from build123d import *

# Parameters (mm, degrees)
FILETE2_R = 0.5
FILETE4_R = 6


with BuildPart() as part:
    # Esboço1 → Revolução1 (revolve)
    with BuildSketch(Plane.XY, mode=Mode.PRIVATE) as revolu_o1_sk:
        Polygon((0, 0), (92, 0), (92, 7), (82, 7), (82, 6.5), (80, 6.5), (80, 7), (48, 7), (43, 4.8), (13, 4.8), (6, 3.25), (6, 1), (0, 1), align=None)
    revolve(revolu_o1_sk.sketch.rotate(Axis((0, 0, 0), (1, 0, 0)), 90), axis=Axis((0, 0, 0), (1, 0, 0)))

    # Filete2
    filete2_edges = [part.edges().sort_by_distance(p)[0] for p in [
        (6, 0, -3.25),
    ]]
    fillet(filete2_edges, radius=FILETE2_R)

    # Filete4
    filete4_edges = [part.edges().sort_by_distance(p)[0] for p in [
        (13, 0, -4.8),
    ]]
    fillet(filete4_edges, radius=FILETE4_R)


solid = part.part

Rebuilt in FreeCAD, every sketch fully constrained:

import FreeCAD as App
import Part
import Sketcher


def edges_at(feature, points):
    """Names of the edges that pass closest to the given points."""
    edges = feature.Shape.Edges
    near = lambda p: min(range(len(edges)), key=lambda i: edges[i].distToShape(Part.Vertex(*p))[0])
    return sorted({f"Edge{near(p) + 1}" for p in points})

doc = App.newDocument("Part")
body = doc.addObject("PartDesign::Body", "Body")

sketch1 = body.newObject("Sketcher::SketchObject", "Sketch")
sketch1.AttachmentSupport = (doc.getObject("XY_Plane"), [""])
sketch1.MapMode = "FlatFace"
sketch1.addGeometry(Part.LineSegment(App.Vector(0, 0, 0), App.Vector(92, 0, 0)), False)
sketch1.addGeometry(Part.LineSegment(App.Vector(92, 0, 0), App.Vector(92, 7, 0)), False)
sketch1.addGeometry(Part.LineSegment(App.Vector(92, 7, 0), App.Vector(82, 7, 0)), False)
sketch1.addGeometry(Part.LineSegment(App.Vector(82, 7, 0), App.Vector(82, 6.5, 0)), False)
sketch1.addGeometry(Part.LineSegment(App.Vector(82, 6.5, 0), App.Vector(80, 6.5, 0)), False)
sketch1.addGeometry(Part.LineSegment(App.Vector(80, 6.5, 0), App.Vector(80, 7, 0)), False)
sketch1.addGeometry(Part.LineSegment(App.Vector(80, 7, 0), App.Vector(48, 7, 0)), False)
sketch1.addGeometry(Part.LineSegment(App.Vector(48, 7, 0), App.Vector(43, 4.8, 0)), False)
sketch1.addGeometry(Part.LineSegment(App.Vector(43, 4.8, 0), App.Vector(13, 4.8, 0)), False)
sketch1.addGeometry(Part.LineSegment(App.Vector(13, 4.8, 0), App.Vector(6, 3.25, 0)), False)
sketch1.addGeometry(Part.LineSegment(App.Vector(6, 3.25, 0), App.Vector(6, 1, 0)), False)
sketch1.addGeometry(Part.LineSegment(App.Vector(6, 1, 0), App.Vector(0, 1, 0)), False)
sketch1.addGeometry(Part.LineSegment(App.Vector(0, 1, 0), App.Vector(0, 0, 0)), False)
sketch1.addConstraint(Sketcher.Constraint("Coincident", 0, 2, 1, 1))
sketch1.addConstraint(Sketcher.Constraint("Coincident", 1, 2, 2, 1))
sketch1.addConstraint(Sketcher.Constraint("Coincident", 2, 2, 3, 1))
sketch1.addConstraint(Sketcher.Constraint("Coincident", 3, 2, 4, 1))
sketch1.addConstraint(Sketcher.Constraint("Coincident", 4, 2, 5, 1))
sketch1.addConstraint(Sketcher.Constraint("Coincident", 5, 2, 6, 1))
sketch1.addConstraint(Sketcher.Constraint("Coincident", 6, 2, 7, 1))
sketch1.addConstraint(Sketcher.Constraint("Coincident", 7, 2, 8, 1))
sketch1.addConstraint(Sketcher.Constraint("Coincident", 8, 2, 9, 1))
sketch1.addConstraint(Sketcher.Constraint("Coincident", 9, 2, 10, 1))
sketch1.addConstraint(Sketcher.Constraint("Coincident", 10, 2, 11, 1))
sketch1.addConstraint(Sketcher.Constraint("Coincident", 11, 2, 12, 1))
sketch1.addConstraint(Sketcher.Constraint("Coincident", 12, 2, 0, 1))
sketch1.addConstraint(Sketcher.Constraint("Horizontal", 0))
sketch1.addConstraint(Sketcher.Constraint("Vertical", 1))
sketch1.addConstraint(Sketcher.Constraint("Horizontal", 2))
sketch1.addConstraint(Sketcher.Constraint("Vertical", 3))
sketch1.addConstraint(Sketcher.Constraint("Horizontal", 4))
sketch1.addConstraint(Sketcher.Constraint("Vertical", 5))
sketch1.addConstraint(Sketcher.Constraint("Horizontal", 6))
sketch1.addConstraint(Sketcher.Constraint("Horizontal", 8))
sketch1.addConstraint(Sketcher.Constraint("Vertical", 10))
sketch1.addConstraint(Sketcher.Constraint("Horizontal", 11))
sketch1.addConstraint(Sketcher.Constraint("Vertical", 12))
sketch1.addConstraint(Sketcher.Constraint("Coincident", 12, 2, -1, 1))
sketch1.addConstraint(Sketcher.Constraint("Horizontal", 2, 2, 5, 2))
sketch1.addConstraint(Sketcher.Constraint("DistanceX", 0, 1, 0, 2, 92.0))
sketch1.addConstraint(Sketcher.Constraint("DistanceX", 2, 2, 2, 1, 10.0))
sketch1.addConstraint(Sketcher.Constraint("DistanceX", 4, 2, 4, 1, 2.0))
sketch1.addConstraint(Sketcher.Constraint("DistanceX", 6, 2, 6, 1, 32.0))
sketch1.addConstraint(Sketcher.Constraint("DistanceX", 8, 2, 8, 1, 30.0))
sketch1.addConstraint(Sketcher.Constraint("DistanceX", 11, 2, 11, 1, 6.0))
sketch1.addConstraint(Sketcher.Constraint("DistanceY", 1, 1, 1, 2, 7.0))
sketch1.addConstraint(Sketcher.Constraint("DistanceY", 12, 2, 12, 1, 1.0))
sketch1.addConstraint(Sketcher.Constraint("DistanceY", 3, 2, 3, 1, 0.5))
sketch1.addConstraint(Sketcher.Constraint("DistanceX", -1, 1, 7, 2, 43.0))
sketch1.addConstraint(Sketcher.Constraint("DistanceY", 10, 2, 10, 1, 2.25))
sketch1.addConstraint(Sketcher.Constraint("DistanceY", -1, 1, 7, 2, 4.8))
revolution = body.newObject("PartDesign::Revolution", "Revolution")
revolution.Profile = sketch1
revolution.ReferenceAxis = (sketch1, ["H_Axis"])
revolution.Angle = 360
doc.recompute()

fillet = body.newObject("PartDesign::Fillet", "Fillet")
fillet.Base = (revolution, edges_at(revolution, [(6, 0, -3.25)]))
fillet.Radius = 0.5
doc.recompute()

fillet2 = body.newObject("PartDesign::Fillet", "Fillet001")
fillet2.Base = (fillet, edges_at(fillet, [(13, 0, -4.8)]))
fillet2.Radius = 6

doc.recompute()
